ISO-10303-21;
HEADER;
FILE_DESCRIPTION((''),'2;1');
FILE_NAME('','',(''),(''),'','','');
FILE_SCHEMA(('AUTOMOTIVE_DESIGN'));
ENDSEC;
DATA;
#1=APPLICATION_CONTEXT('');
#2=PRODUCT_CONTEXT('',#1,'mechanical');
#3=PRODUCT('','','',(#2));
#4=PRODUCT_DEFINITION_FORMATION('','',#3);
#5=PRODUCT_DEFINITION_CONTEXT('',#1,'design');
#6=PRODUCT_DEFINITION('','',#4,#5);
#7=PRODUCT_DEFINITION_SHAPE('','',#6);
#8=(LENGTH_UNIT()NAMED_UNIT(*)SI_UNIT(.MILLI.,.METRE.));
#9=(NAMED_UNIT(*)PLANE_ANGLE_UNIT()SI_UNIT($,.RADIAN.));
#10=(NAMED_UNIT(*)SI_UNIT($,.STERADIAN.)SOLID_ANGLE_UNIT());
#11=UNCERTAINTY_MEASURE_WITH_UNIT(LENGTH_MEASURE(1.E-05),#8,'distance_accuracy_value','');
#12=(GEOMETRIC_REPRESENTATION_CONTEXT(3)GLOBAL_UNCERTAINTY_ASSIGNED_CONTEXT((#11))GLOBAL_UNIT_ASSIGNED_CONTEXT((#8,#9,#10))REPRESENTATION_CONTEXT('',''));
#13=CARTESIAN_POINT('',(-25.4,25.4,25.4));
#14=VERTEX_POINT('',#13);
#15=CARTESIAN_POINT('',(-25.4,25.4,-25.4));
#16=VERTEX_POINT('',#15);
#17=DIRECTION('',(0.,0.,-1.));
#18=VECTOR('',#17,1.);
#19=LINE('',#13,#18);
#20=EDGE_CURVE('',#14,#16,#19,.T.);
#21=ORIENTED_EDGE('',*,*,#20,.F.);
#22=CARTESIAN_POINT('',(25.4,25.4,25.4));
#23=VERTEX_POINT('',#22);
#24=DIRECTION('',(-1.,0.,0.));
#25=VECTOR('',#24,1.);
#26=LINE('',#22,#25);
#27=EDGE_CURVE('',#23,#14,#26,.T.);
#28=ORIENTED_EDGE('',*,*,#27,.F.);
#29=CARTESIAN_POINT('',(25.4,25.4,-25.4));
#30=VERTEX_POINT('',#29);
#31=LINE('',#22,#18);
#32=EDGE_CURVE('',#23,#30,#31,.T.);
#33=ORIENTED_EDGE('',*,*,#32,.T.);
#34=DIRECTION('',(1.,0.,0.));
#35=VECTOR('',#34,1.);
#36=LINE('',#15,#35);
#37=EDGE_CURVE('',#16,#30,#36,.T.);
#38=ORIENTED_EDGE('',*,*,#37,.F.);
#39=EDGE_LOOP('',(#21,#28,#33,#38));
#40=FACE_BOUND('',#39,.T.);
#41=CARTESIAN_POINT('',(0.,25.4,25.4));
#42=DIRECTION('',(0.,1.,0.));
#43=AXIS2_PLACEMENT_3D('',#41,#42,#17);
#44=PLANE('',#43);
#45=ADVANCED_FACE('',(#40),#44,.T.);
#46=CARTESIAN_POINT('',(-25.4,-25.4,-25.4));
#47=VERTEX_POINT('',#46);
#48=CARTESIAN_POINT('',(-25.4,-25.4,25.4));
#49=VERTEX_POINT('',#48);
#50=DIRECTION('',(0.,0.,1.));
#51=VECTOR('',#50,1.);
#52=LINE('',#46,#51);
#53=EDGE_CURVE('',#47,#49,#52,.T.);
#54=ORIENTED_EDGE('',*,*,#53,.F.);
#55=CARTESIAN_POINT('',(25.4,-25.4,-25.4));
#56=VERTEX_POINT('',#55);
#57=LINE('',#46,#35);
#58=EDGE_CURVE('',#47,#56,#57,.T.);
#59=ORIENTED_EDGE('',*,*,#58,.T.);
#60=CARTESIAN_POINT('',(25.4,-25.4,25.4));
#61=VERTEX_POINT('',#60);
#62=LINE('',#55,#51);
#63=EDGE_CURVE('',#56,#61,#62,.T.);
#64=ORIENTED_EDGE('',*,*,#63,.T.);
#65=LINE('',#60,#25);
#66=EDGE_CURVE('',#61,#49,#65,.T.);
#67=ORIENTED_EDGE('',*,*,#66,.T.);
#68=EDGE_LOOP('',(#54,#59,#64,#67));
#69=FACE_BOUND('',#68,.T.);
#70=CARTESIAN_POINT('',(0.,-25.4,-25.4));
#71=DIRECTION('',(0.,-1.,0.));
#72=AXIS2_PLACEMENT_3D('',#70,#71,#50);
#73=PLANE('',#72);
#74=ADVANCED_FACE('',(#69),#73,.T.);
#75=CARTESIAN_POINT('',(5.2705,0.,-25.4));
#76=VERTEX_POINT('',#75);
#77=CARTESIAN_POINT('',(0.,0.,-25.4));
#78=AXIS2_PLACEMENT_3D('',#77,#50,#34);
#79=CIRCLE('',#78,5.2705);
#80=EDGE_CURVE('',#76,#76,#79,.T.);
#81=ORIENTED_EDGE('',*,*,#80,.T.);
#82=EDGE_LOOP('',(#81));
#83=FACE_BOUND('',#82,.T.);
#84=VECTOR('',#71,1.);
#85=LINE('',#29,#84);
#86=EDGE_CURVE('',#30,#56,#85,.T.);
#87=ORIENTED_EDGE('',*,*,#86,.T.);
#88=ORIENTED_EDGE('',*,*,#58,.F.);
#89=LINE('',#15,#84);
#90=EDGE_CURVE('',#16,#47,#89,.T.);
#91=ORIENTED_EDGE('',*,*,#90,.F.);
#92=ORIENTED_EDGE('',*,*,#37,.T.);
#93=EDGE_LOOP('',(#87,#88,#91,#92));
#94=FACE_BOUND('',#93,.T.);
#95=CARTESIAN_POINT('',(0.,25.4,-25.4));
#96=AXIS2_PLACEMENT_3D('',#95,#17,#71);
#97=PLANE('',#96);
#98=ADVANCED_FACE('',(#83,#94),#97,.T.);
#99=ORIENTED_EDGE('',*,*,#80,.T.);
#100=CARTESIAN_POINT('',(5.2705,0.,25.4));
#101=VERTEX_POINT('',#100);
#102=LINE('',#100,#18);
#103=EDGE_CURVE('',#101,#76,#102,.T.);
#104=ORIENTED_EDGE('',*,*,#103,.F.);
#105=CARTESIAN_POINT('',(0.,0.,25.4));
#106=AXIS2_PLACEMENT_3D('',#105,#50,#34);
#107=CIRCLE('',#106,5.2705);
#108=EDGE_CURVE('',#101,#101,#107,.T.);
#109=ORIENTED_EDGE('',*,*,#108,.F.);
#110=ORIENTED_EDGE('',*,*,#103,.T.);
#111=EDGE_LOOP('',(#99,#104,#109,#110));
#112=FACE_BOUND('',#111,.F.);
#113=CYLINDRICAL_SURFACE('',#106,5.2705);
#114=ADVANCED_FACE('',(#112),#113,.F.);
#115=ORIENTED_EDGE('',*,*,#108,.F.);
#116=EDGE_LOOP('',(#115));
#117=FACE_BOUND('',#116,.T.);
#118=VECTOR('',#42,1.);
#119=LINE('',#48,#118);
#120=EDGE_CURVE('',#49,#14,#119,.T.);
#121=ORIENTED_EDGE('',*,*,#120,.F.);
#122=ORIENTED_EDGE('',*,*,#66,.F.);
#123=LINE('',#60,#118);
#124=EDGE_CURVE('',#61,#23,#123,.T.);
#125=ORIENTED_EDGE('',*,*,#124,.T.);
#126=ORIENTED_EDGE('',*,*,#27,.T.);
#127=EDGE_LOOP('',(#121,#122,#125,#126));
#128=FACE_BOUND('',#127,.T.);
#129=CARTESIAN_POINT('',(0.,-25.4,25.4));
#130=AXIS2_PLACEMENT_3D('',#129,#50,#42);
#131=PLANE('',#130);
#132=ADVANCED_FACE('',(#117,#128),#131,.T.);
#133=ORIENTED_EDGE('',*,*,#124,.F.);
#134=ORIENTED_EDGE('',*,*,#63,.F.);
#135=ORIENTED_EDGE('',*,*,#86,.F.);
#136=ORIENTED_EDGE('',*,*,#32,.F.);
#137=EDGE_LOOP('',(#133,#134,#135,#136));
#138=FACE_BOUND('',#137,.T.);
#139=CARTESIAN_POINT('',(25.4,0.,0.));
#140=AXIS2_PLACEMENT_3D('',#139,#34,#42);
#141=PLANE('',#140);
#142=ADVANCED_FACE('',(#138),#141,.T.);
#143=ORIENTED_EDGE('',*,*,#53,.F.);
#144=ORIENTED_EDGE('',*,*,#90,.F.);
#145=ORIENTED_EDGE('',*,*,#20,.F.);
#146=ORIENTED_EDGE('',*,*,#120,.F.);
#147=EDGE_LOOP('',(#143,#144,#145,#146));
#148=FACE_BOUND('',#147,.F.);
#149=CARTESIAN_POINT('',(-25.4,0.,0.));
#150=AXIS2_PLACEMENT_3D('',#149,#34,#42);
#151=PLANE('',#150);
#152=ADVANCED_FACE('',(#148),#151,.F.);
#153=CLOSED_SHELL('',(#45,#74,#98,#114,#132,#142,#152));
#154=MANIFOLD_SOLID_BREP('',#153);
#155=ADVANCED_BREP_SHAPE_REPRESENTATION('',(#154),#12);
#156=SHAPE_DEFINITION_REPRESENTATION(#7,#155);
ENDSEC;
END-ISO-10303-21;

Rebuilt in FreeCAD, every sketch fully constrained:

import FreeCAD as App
import Part
import Sketcher

V = App.Vector
Q = App.Units.Quantity

doc = App.newDocument("Part")
params = doc.addObject("Spreadsheet::Sheet", "Params")
for row, (alias, value) in enumerate([
    ("sketch1_width", "2 in"),
    ("pad1_length", "2 in"),
    ("sketch2_diameter", "0.415 in"),
], start=1):
    params.set(f"A{row}", alias)
    params.set(f"B{row}", "=" + value)
    params.setAlias(f"B{row}", alias)

body = doc.addObject("PartDesign::Body", "Body")

# Sketch on YZ plane
sketch1 = body.newObject("Sketcher::SketchObject", "Sketch")
sketch1.AttachmentSupport = (doc.getObject("YZ_Plane"), [""])
sketch1.MapMode = "FlatFace"
sketch1.addGeometry([
    Part.LineSegment(V(-25, 25, 0), V(-25, -25, 0)),
    Part.LineSegment(V(-25, -25, 0), V(25, -25, 0)),
    Part.LineSegment(V(25, -25, 0), V(25, 25, 0)),
    Part.LineSegment(V(25, 25, 0), V(-25, 25, 0)),
], False)
sketch1.addConstraint([
    Sketcher.Constraint("Coincident", 0, 2, 1, 1),
    Sketcher.Constraint("Coincident", 1, 2, 2, 1),
    Sketcher.Constraint("Coincident", 2, 2, 3, 1),
    Sketcher.Constraint("Coincident", 3, 2, 0, 1),
    Sketcher.Constraint("Vertical", 0),
    Sketcher.Constraint("Horizontal", 1),
    Sketcher.Constraint("Vertical", 2),
    Sketcher.Constraint("Horizontal", 3),
    Sketcher.Constraint("Symmetric", 0, 2, 2, 2, -1, 1),
    Sketcher.Constraint("Equal", 3, 0),
    Sketcher.Constraint("DistanceX", 1, 1, 1, 2, Q("2 in")),
])
sketch1.setExpression("Constraints[10]", "Params.sketch1_width")
pad1 = body.newObject("PartDesign::Pad", "Pad")
pad1.Profile = sketch1
pad1.setExpression("Length", "Params.pad1_length")
pad1.Midplane = True

# Sketch on XY plane
sketch2 = body.newObject("Sketcher::SketchObject", "Sketch001")
sketch2.AttachmentSupport = (doc.getObject("XY_Plane"), [""])
sketch2.MapMode = "FlatFace"
sketch2.AttachmentOffset = App.Placement(V(0, 0, 1 * 25.4), App.Rotation())
sketch2.addGeometry(Part.Circle(V(0, 0, 0), V(0, 0, 1), 5), False)
sketch2.addConstraint([
    Sketcher.Constraint("Coincident", 0, 3, -1, 1),
    Sketcher.Constraint("Diameter", 0, Q("0.415 in")),
])
sketch2.setExpression("Constraints[1]", "Params.sketch2_diameter")
pocket1 = body.newObject("PartDesign::Pocket", "Pocket")
pocket1.Profile = sketch2
pocket1.Type = "ThroughAll"

doc.recompute()
